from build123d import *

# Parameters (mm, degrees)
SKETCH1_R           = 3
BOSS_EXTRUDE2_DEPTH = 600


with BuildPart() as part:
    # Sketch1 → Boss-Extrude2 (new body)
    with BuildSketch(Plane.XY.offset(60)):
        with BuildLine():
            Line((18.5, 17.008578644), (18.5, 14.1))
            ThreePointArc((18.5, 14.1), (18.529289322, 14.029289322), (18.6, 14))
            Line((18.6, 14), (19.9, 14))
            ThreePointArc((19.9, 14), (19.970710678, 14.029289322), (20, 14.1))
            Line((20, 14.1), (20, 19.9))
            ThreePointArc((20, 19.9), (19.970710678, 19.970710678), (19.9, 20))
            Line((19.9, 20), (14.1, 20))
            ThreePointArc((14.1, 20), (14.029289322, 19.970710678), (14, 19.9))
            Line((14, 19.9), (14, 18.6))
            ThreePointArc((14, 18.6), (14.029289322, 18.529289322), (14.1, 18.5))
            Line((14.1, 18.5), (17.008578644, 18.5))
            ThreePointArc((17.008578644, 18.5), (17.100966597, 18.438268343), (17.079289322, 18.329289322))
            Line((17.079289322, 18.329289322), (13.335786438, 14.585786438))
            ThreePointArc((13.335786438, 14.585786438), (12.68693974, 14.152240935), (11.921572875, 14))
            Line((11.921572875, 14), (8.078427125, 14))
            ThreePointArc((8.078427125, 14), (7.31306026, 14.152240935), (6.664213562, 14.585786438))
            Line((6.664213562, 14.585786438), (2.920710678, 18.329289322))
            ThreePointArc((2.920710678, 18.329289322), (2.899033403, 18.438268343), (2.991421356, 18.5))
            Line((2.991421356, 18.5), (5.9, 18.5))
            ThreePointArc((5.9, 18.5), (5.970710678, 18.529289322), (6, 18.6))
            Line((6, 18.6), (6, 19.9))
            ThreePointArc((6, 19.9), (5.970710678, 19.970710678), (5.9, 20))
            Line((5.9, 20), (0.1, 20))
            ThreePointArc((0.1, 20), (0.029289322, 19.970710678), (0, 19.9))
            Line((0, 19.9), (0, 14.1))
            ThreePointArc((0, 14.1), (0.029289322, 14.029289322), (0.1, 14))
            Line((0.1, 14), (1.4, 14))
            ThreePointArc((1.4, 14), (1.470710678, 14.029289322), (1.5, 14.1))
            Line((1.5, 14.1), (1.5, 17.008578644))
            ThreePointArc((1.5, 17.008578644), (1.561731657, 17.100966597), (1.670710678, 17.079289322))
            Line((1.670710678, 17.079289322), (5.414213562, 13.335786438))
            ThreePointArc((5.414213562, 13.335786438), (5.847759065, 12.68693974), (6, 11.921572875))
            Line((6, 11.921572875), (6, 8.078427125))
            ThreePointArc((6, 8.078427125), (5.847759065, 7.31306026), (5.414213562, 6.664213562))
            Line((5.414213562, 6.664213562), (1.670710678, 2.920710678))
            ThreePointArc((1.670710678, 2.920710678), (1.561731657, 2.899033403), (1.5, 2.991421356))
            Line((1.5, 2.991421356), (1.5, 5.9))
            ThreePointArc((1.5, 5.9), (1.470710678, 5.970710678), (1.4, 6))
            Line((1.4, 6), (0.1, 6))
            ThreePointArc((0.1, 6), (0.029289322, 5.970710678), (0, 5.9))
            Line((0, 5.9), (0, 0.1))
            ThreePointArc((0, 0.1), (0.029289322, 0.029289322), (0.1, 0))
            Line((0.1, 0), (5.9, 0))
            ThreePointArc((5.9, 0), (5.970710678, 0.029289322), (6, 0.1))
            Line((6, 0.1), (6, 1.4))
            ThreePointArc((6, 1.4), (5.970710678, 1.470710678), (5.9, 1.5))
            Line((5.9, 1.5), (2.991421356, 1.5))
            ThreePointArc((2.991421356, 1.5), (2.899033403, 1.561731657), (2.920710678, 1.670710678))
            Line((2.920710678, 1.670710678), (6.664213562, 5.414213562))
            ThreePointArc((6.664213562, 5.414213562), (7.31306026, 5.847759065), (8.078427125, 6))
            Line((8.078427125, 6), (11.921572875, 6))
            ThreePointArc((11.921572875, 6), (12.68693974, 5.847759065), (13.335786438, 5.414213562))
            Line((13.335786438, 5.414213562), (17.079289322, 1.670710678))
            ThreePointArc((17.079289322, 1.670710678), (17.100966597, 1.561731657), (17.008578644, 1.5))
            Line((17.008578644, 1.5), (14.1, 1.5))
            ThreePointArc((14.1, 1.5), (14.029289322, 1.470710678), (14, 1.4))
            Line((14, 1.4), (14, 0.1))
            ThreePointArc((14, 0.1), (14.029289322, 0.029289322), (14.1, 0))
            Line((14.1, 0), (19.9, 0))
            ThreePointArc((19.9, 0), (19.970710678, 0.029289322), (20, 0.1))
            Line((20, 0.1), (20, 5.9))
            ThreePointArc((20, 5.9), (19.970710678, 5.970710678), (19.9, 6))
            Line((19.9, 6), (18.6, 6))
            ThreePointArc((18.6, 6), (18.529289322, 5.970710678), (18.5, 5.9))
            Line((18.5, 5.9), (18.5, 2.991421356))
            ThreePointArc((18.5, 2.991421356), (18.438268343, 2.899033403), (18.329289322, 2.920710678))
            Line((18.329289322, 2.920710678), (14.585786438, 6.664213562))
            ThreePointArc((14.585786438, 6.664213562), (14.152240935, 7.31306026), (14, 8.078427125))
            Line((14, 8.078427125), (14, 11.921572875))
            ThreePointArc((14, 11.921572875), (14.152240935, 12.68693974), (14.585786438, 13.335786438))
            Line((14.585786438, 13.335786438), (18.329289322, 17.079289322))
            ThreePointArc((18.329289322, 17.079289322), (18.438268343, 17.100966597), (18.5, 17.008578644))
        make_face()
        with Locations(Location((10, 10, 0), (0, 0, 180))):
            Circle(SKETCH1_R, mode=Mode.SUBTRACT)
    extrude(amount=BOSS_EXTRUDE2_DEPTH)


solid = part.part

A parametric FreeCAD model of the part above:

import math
import FreeCAD as App
import Part
import Sketcher

V = App.Vector
Q = App.Units.Quantity

doc = App.newDocument("Part")
params = doc.addObject("Spreadsheet::Sheet", "Params")
for row, (alias, value) in enumerate([
    ("sketch1_diameter", "6 mm"),
    ("sketch1_radius", "2 mm"),
    ("sketch1_radius2", "0.1 mm"),
    ("sketch1_width", "1.3 mm"),
    ("sketch1_width2", "5.8 mm"),
    ("pad1_length", "600 mm"),
], start=1):
    params.set(f"A{row}", alias)
    params.set(f"B{row}", "=" + value)
    params.setAlias(f"B{row}", alias)

body = doc.addObject("PartDesign::Body", "Body")

# Sketch on XY plane
sketch1 = body.newObject("Sketcher::SketchObject", "Sketch")
sketch1.AttachmentSupport = (doc.getObject("XY_Plane"), [""])
sketch1.MapMode = "FlatFace"
sketch1.AttachmentOffset = App.Placement(V(0, 0, 60), App.Rotation())
sketch1.addGeometry([
    Part.LineSegment(V(18.5, 17.008579, 0), V(18.5, 14.1, 0)),  # 0
    Part.ArcOfCircle(Part.Circle(V(18.6, 14.1, 0), V(0, 0, 1), 0.1), math.radians(180), math.radians(270)),  # 1
    Part.LineSegment(V(18.6, 14, 0), V(19.9, 14, 0)),  # 2
    Part.ArcOfCircle(Part.Circle(V(19.9, 14.1, 0), V(0, 0, 1), 0.1), math.radians(-90), math.radians(0)),  # 3
    Part.LineSegment(V(20, 14.1, 0), V(20, 19.9, 0)),  # 4
    Part.ArcOfCircle(Part.Circle(V(19.9, 19.9, 0), V(0, 0, 1), 0.1), math.radians(0), math.radians(90)),  # 5
    Part.LineSegment(V(19.9, 20, 0), V(14.1, 20, 0)),  # 6
    Part.ArcOfCircle(Part.Circle(V(14.1, 19.9, 0), V(0, 0, 1), 0.1), math.radians(90), math.radians(180)),  # 7
    Part.LineSegment(V(14, 19.9, 0), V(14, 18.6, 0)),  # 8
    Part.ArcOfCircle(Part.Circle(V(14.1, 18.6, 0), V(0, 0, 1), 0.1), math.radians(180), math.radians(270)),  # 9
    Part.LineSegment(V(14.1, 18.5, 0), V(17.008579, 18.5, 0)),  # 10
    Part.ArcOfCircle(Part.Circle(V(17.008579, 18.4, 0), V(0, 0, 1), 0.1), math.radians(-45), math.radians(90)),  # 11
    Part.LineSegment(V(17.079289, 18.329289, 0), V(13.335786, 14.585786, 0)),  # 12
    Part.ArcOfCircle(Part.Circle(V(11.921573, 16, 0), V(0, 0, 1), 2), math.radians(-90), math.radians(-45)),  # 13
    Part.LineSegment(V(11.921573, 14, 0), V(8.078427, 14, 0)),  # 14
    Part.ArcOfCircle(Part.Circle(V(8.078427, 16, 0), V(0, 0, 1), 2), math.radians(-135), math.radians(-90)),  # 15
    Part.LineSegment(V(6.664214, 14.585786, 0), V(2.920711, 18.329289, 0)),  # 16
    Part.ArcOfCircle(Part.Circle(V(2.991421, 18.4, 0), V(0, 0, 1), 0.1), math.radians(90), math.radians(225)),  # 17
    Part.LineSegment(V(2.991421, 18.5, 0), V(5.9, 18.5, 0)),  # 18
    Part.ArcOfCircle(Part.Circle(V(5.9, 18.6, 0), V(0, 0, 1), 0.1), math.radians(-90), math.radians(0)),  # 19
    Part.LineSegment(V(6, 18.6, 0), V(6, 19.9, 0)),  # 20
    Part.ArcOfCircle(Part.Circle(V(5.9, 19.9, 0), V(0, 0, 1), 0.1), math.radians(0), math.radians(90)),  # 21
    Part.LineSegment(V(5.9, 20, 0), V(0.1, 20, 0)),  # 22
    Part.ArcOfCircle(Part.Circle(V(0.1, 19.9, 0), V(0, 0, 1), 0.1), math.radians(90), math.radians(180)),  # 23
    Part.LineSegment(V(0, 19.9, 0), V(0, 14.1, 0)),  # 24
    Part.ArcOfCircle(Part.Circle(V(0.1, 14.1, 0), V(0, 0, 1), 0.1), math.radians(180), math.radians(270)),  # 25
    Part.LineSegment(V(0.1, 14, 0), V(1.4, 14, 0)),  # 26
    Part.ArcOfCircle(Part.Circle(V(1.4, 14.1, 0), V(0, 0, 1), 0.1), math.radians(-90), math.radians(0)),  # 27
    Part.LineSegment(V(1.5, 14.1, 0), V(1.5, 17.008579, 0)),  # 28
    Part.ArcOfCircle(Part.Circle(V(1.6, 17.008579, 0), V(0, 0, 1), 0.1), math.radians(45), math.radians(180)),  # 29
    Part.LineSegment(V(1.670711, 17.079289, 0), V(5.414214, 13.335786, 0)),  # 30
    Part.ArcOfCircle(Part.Circle(V(4, 11.921573, 0), V(0, 0, 1), 2), math.radians(0), math.radians(45)),  # 31
    Part.LineSegment(V(6, 11.921573, 0), V(6, 8.078427, 0)),  # 32
    Part.ArcOfCircle(Part.Circle(V(4, 8.078427, 0), V(0, 0, 1), 2), math.radians(-45), math.radians(0)),  # 33
    Part.LineSegment(V(5.414214, 6.664214, 0), V(1.670711, 2.920711, 0)),  # 34
    Part.ArcOfCircle(Part.Circle(V(1.6, 2.991421, 0), V(0, 0, 1), 0.1), math.radians(180), math.radians(315)),  # 35
    Part.LineSegment(V(1.5, 2.991421, 0), V(1.5, 5.9, 0)),  # 36
    Part.ArcOfCircle(Part.Circle(V(1.4, 5.9, 0), V(0, 0, 1), 0.1), math.radians(0), math.radians(90)),  # 37
    Part.LineSegment(V(1.4, 6, 0), V(0.1, 6, 0)),  # 38
    Part.ArcOfCircle(Part.Circle(V(0.1, 5.9, 0), V(0, 0, 1), 0.1), math.radians(90), math.radians(180)),  # 39
    Part.LineSegment(V(0, 5.9, 0), V(0, 0.1, 0)),  # 40
    Part.ArcOfCircle(Part.Circle(V(0.1, 0.1, 0), V(0, 0, 1), 0.1), math.radians(180), math.radians(270)),  # 41
    Part.LineSegment(V(0.1, 0, 0), V(5.9, 0, 0)),  # 42
    Part.ArcOfCircle(Part.Circle(V(5.9, 0.1, 0), V(0, 0, 1), 0.1), math.radians(-90), math.radians(0)),  # 43
    Part.LineSegment(V(6, 0.1, 0), V(6, 1.4, 0)),  # 44
    Part.ArcOfCircle(Part.Circle(V(5.9, 1.4, 0), V(0, 0, 1), 0.1), math.radians(0), math.radians(90)),  # 45
    Part.LineSegment(V(5.9, 1.5, 0), V(2.991421, 1.5, 0)),  # 46
    Part.ArcOfCircle(Part.Circle(V(2.991421, 1.6, 0), V(0, 0, 1), 0.1), math.radians(135), math.radians(270)),  # 47
    Part.LineSegment(V(2.920711, 1.670711, 0), V(6.664214, 5.414214, 0)),  # 48
    Part.ArcOfCircle(Part.Circle(V(8.078427, 4, 0), V(0, 0, 1), 2), math.radians(90), math.radians(135)),  # 49
    Part.LineSegment(V(8.078427, 6, 0), V(11.921573, 6, 0)),  # 50
    Part.ArcOfCircle(Part.Circle(V(11.921573, 4, 0), V(0, 0, 1), 2), math.radians(45), math.radians(90)),  # 51
    Part.LineSegment(V(13.335786, 5.414214, 0), V(17.079289, 1.670711, 0)),  # 52
    Part.ArcOfCircle(Part.Circle(V(17.008579, 1.6, 0), V(0, 0, 1), 0.1), math.radians(-90), math.radians(45)),  # 53
    Part.LineSegment(V(17.008579, 1.5, 0), V(14.1, 1.5, 0)),  # 54
    Part.ArcOfCircle(Part.Circle(V(14.1, 1.4, 0), V(0, 0, 1), 0.1), math.radians(90), math.radians(180)),  # 55
    Part.LineSegment(V(14, 1.4, 0), V(14, 0.1, 0)),  # 56
    Part.ArcOfCircle(Part.Circle(V(14.1, 0.1, 0), V(0, 0, 1), 0.1), math.radians(180), math.radians(270)),  # 57
    Part.LineSegment(V(14.1, 0, 0), V(19.9, 0, 0)),  # 58
    Part.ArcOfCircle(Part.Circle(V(19.9, 0.1, 0), V(0, 0, 1), 0.1), math.radians(-90), math.radians(0)),  # 59
    Part.LineSegment(V(20, 0.1, 0), V(20, 5.9, 0)),  # 60
    Part.ArcOfCircle(Part.Circle(V(19.9, 5.9, 0), V(0, 0, 1), 0.1), math.radians(0), math.radians(90)),  # 61
    Part.LineSegment(V(19.9, 6, 0), V(18.6, 6, 0)),  # 62
    Part.ArcOfCircle(Part.Circle(V(18.6, 5.9, 0), V(0, 0, 1), 0.1), math.radians(90), math.radians(180)),  # 63
    Part.LineSegment(V(18.5, 5.9, 0), V(18.5, 2.991421, 0)),  # 64
    Part.ArcOfCircle(Part.Circle(V(18.4, 2.991421, 0), V(0, 0, 1), 0.1), math.radians(-135), math.radians(0)),  # 65
    Part.LineSegment(V(18.329289, 2.920711, 0), V(14.585786, 6.664214, 0)),  # 66
    Part.ArcOfCircle(Part.Circle(V(16, 8.078427, 0), V(0, 0, 1), 2), math.radians(180), math.radians(225)),  # 67
    Part.LineSegment(V(14, 8.078427, 0), V(14, 11.921573, 0)),  # 68
    Part.ArcOfCircle(Part.Circle(V(16, 11.921573, 0), V(0, 0, 1), 2), math.radians(135), math.radians(180)),  # 69
    Part.LineSegment(V(14.585786, 13.335786, 0), V(18.329289, 17.079289, 0)),  # 70
    Part.ArcOfCircle(Part.Circle(V(18.4, 17.008579, 0), V(0, 0, 1), 0.1), math.radians(0), math.radians(135)),  # 71
    Part.Circle(V(10, 10, 0), V(0, 0, 1), 3),  # 72
], False)
sketch1.addConstraint([
    Sketcher.Constraint("Tangent", 0, 2, 1, 1),
    Sketcher.Constraint("Tangent", 1, 2, 2, 1),
    Sketcher.Constraint("Tangent", 2, 2, 3, 1),
    Sketcher.Constraint("Tangent", 3, 2, 4, 1),
    Sketcher.Constraint("Tangent", 4, 2, 5, 1),
    Sketcher.Constraint("Tangent", 5, 2, 6, 1),
    Sketcher.Constraint("Tangent", 6, 2, 7, 1),
    Sketcher.Constraint("Tangent", 7, 2, 8, 1),
    Sketcher.Constraint("Tangent", 8, 2, 9, 1),
    Sketcher.Constraint("Tangent", 9, 2, 10, 1),
    Sketcher.Constraint("Tangent", 10, 2, 11, 2),
    Sketcher.Constraint("Tangent", 11, 1, 12, 1),
    Sketcher.Constraint("Tangent", 12, 2, 13, 2),
    Sketcher.Constraint("Tangent", 13, 1, 14, 1),
    Sketcher.Constraint("Tangent", 14, 2, 15, 2),
    Sketcher.Constraint("Tangent", 15, 1, 16, 1),
    Sketcher.Constraint("Tangent", 16, 2, 17, 2),
    Sketcher.Constraint("Tangent", 17, 1, 18, 1),
    Sketcher.Constraint("Tangent", 18, 2, 19, 1),
    Sketcher.Constraint("Tangent", 19, 2, 20, 1),
    Sketcher.Constraint("Tangent", 20, 2, 21, 1),
    Sketcher.Constraint("Tangent", 21, 2, 22, 1),
    Sketcher.Constraint("Tangent", 22, 2, 23, 1),
    Sketcher.Constraint("Tangent", 23, 2, 24, 1),
    Sketcher.Constraint("Tangent", 24, 2, 25, 1),
    Sketcher.Constraint("Tangent", 25, 2, 26, 1),
    Sketcher.Constraint("Tangent", 26, 2, 27, 1),
    Sketcher.Constraint("Tangent", 27, 2, 28, 1),
    Sketcher.Constraint("Tangent", 28, 2, 29, 2),
    Sketcher.Constraint("Tangent", 29, 1, 30, 1),
    Sketcher.Constraint("Tangent", 30, 2, 31, 2),
    Sketcher.Constraint("Tangent", 31, 1, 32, 1),
    Sketcher.Constraint("Tangent", 32, 2, 33, 2),
    Sketcher.Constraint("Tangent", 33, 1, 34, 1),
    Sketcher.Constraint("Tangent", 34, 2, 35, 2),
    Sketcher.Constraint("Tangent", 35, 1, 36, 1),
    Sketcher.Constraint("Tangent", 36, 2, 37, 1),
    Sketcher.Constraint("Tangent", 37, 2, 38, 1),
    Sketcher.Constraint("Tangent", 38, 2, 39, 1),
    Sketcher.Constraint("Tangent", 39, 2, 40, 1),
    Sketcher.Constraint("Tangent", 40, 2, 41, 1),
    Sketcher.Constraint("Tangent", 41, 2, 42, 1),
    Sketcher.Constraint("Tangent", 42, 2, 43, 1),
    Sketcher.Constraint("Tangent", 43, 2, 44, 1),
    Sketcher.Constraint("Tangent", 44, 2, 45, 1),
    Sketcher.Constraint("Tangent", 45, 2, 46, 1),
    Sketcher.Constraint("Tangent", 46, 2, 47, 2),
    Sketcher.Constraint("Tangent", 47, 1, 48, 1),
    Sketcher.Constraint("Tangent", 48, 2, 49, 2),
    Sketcher.Constraint("Tangent", 49, 1, 50, 1),
    Sketcher.Constraint("Tangent", 50, 2, 51, 2),
    Sketcher.Constraint("Tangent", 51, 1, 52, 1),
    Sketcher.Constraint("Tangent", 52, 2, 53, 2),
    Sketcher.Constraint("Tangent", 53, 1, 54, 1),
    Sketcher.Constraint("Tangent", 54, 2, 55, 1),
    Sketcher.Constraint("Tangent", 55, 2, 56, 1),
    Sketcher.Constraint("Tangent", 56, 2, 57, 1),
    Sketcher.Constraint("Tangent", 57, 2, 58, 1),
    Sketcher.Constraint("Tangent", 58, 2, 59, 1),
    Sketcher.Constraint("Tangent", 59, 2, 60, 1),
    Sketcher.Constraint("Tangent", 60, 2, 61, 1),
    Sketcher.Constraint("Tangent", 61, 2, 62, 1),
    Sketcher.Constraint("Tangent", 62, 2, 63, 1),
    Sketcher.Constraint("Tangent", 63, 2, 64, 1),
    Sketcher.Constraint("Tangent", 64, 2, 65, 2),
    Sketcher.Constraint("Tangent", 65, 1, 66, 1),
    Sketcher.Constraint("Tangent", 66, 2, 67, 2),
    Sketcher.Constraint("Tangent", 67, 1, 68, 1),
    Sketcher.Constraint("Tangent", 68, 2, 69, 2),
    Sketcher.Constraint("Tangent", 69, 1, 70, 1),
    Sketcher.Constraint("Tangent", 70, 2, 71, 2),
    Sketcher.Constraint("Tangent", 71, 1, 0, 1),
    Sketcher.Constraint("Vertical", 0),
    Sketcher.Constraint("Horizontal", 2),
    Sketcher.Constraint("Vertical", 4),
    Sketcher.Constraint("Horizontal", 6),
    Sketcher.Constraint("Vertical", 8),
    Sketcher.Constraint("Horizontal", 10),
    Sketcher.Constraint("Horizontal", 14),
    Sketcher.Constraint("Horizontal", 18),
    Sketcher.Constraint("Vertical", 20),
    Sketcher.Constraint("Horizontal", 22),
    Sketcher.Constraint("Vertical", 24),
    Sketcher.Constraint("Horizontal", 26),
    Sketcher.Constraint("Vertical", 28),
    Sketcher.Constraint("Vertical", 32),
    Sketcher.Constraint("Vertical", 36),
    Sketcher.Constraint("Horizontal", 38),
    Sketcher.Constraint("Vertical", 40),
    Sketcher.Constraint("Horizontal", 42),
    Sketcher.Constraint("Vertical", 44),
    Sketcher.Constraint("Horizontal", 46),
    Sketcher.Constraint("Horizontal", 50),
    Sketcher.Constraint("Horizontal", 54),
    Sketcher.Constraint("Vertical", 56),
    Sketcher.Constraint("Horizontal", 58),
    Sketcher.Constraint("Vertical", 60),
    Sketcher.Constraint("Horizontal", 62),
    Sketcher.Constraint("Vertical", 64),
    Sketcher.Constraint("Vertical", 68),
    Sketcher.Constraint("Equal", 1, 3),
    Sketcher.Constraint("Equal", 3, 5),
    Sketcher.Constraint("Equal", 5, 7),
    Sketcher.Constraint("Equal", 7, 9),
    Sketcher.Constraint("Equal", 9, 11),
    Sketcher.Constraint("Equal", 13, 15),
    Sketcher.Constraint("Equal", 11, 17),
    Sketcher.Constraint("Equal", 17, 19),
    Sketcher.Constraint("Equal", 19, 21),
    Sketcher.Constraint("Equal", 21, 23),
    Sketcher.Constraint("Equal", 23, 25),
    Sketcher.Constraint("Equal", 25, 27),
    Sketcher.Constraint("Equal", 27, 29),
    Sketcher.Constraint("Equal", 15, 31),
    Sketcher.Constraint("Equal", 31, 33),
    Sketcher.Constraint("Equal", 29, 35),
    Sketcher.Constraint("Equal", 35, 37),
    Sketcher.Constraint("Equal", 37, 39),
    Sketcher.Constraint("Equal", 39, 41),
    Sketcher.Constraint("Equal", 41, 43),
    Sketcher.Constraint("Equal", 43, 45),
    Sketcher.Constraint("Equal", 45, 47),
    Sketcher.Constraint("Equal", 33, 49),
    Sketcher.Constraint("Equal", 49, 51),
    Sketcher.Constraint("Equal", 47, 53),
    Sketcher.Constraint("Equal", 53, 55),
    Sketcher.Constraint("Equal", 55, 57),
    Sketcher.Constraint("Equal", 57, 59),
    Sketcher.Constraint("Equal", 59, 61),
    Sketcher.Constraint("Equal", 61, 63),
    Sketcher.Constraint("Equal", 63, 65),
    Sketcher.Constraint("Equal", 51, 67),
    Sketcher.Constraint("Equal", 67, 69),
    Sketcher.Constraint("Equal", 65, 71),
    Sketcher.Constraint("PointOnObject", 23, 2, -2),
    Sketcher.Constraint("PointOnObject", 39, 2, -2),
    Sketcher.Constraint("PointOnObject", 41, 2, -1),
    Sketcher.Constraint("PointOnObject", 57, 2, -1),
    Sketcher.Constraint("Perpendicular", 12, 16),
    Sketcher.Constraint("Parallel", 16, 30),
    Sketcher.Constraint("Perpendicular", 30, 34),
    Sketcher.Constraint("Parallel", 34, 48),
    Sketcher.Constraint("Perpendicular", 48, 52),
    Sketcher.Constraint("Parallel", 52, 66),
    Sketcher.Constraint("Perpendicular", 66, 70),
    Sketcher.Constraint("Horizontal", 11, 3, 17, 3),
    Sketcher.Constraint("Horizontal", 7, 3, 21, 3),
    Sketcher.Constraint("Horizontal", 3, 3, 25, 3),
    Sketcher.Constraint("Horizontal", 47, 3, 53, 3),
    Sketcher.Constraint("Horizontal", 39, 3, 61, 3),
    Sketcher.Constraint("Horizontal", 35, 3, 65, 3),
    Sketcher.Constraint("Horizontal", 33, 3, 67, 3),
    Sketcher.Constraint("Horizontal", 31, 3, 69, 3),
    Sketcher.Constraint("Horizontal", 29, 3, 71, 3),
    Sketcher.Constraint("Horizontal", 2, 2, 13, 1),
    Sketcher.Constraint("Horizontal", 12, 2, 15, 1),
    Sketcher.Constraint("Horizontal", 38, 2, 49, 1),
    Sketcher.Constraint("Vertical", 29, 3, 35, 3),
    Sketcher.Constraint("Vertical", 21, 3, 43, 3),
    Sketcher.Constraint("Vertical", 17, 3, 47, 3),
    Sketcher.Constraint("Vertical", 15, 3, 49, 3),
    Sketcher.Constraint("Vertical", 13, 3, 51, 3),
    Sketcher.Constraint("Vertical", 9, 3, 55, 3),
    Sketcher.Constraint("Vertical", 5, 3, 59, 3),
    Sketcher.Constraint("Vertical", 20, 2, 31, 1),
    Sketcher.Constraint("Vertical", 56, 2, 67, 1),
    Sketcher.Constraint("Equal", 10, 18),
    Sketcher.Constraint("Equal", 6, 22),
    Sketcher.Constraint("Equal", 54, 0),
    Sketcher.Constraint("Equal", 58, 4),
    Sketcher.Constraint("Equal", 62, 8),
    Sketcher.Constraint("Equal", 50, 32),
    Sketcher.Constraint("Equal", 28, 36),
    Sketcher.Constraint("Equal", 24, 40),
    Sketcher.Constraint("Diameter", 72, Q("6 mm")),
    Sketcher.Constraint("Radius", 13, Q("2 mm")),
    Sketcher.Constraint("Radius", 1, Q("0.1 mm")),
    Sketcher.Constraint("DistanceX", 2, 1, 2, 2, Q("1.3 mm")),
    Sketcher.Constraint("DistanceX", 6, 2, 6, 1, Q("5.8 mm")),
    Sketcher.Constraint("DistanceY", -1, 1, 13, 3, Q("16 mm")),
    Sketcher.Constraint("DistanceX", -1, 1, 72, 3, Q("10 mm")),
    Sketcher.Constraint("DistanceY", -1, 1, 72, 3, Q("10 mm")),
    Sketcher.Constraint("DistanceX", 10, 1, 10, 2, Q("2.908579 mm")),
])
sketch1.setExpression("Constraints[174]", "Params.sketch1_diameter")
sketch1.setExpression("Constraints[175]", "Params.sketch1_radius")
sketch1.setExpression("Constraints[176]", "Params.sketch1_radius2")
sketch1.setExpression("Constraints[177]", "Params.sketch1_width")
sketch1.setExpression("Constraints[178]", "Params.sketch1_width2")
pad1 = body.newObject("PartDesign::Pad", "Pad")
pad1.Profile = sketch1
pad1.setExpression("Length", "Params.pad1_length")

doc.recompute()
